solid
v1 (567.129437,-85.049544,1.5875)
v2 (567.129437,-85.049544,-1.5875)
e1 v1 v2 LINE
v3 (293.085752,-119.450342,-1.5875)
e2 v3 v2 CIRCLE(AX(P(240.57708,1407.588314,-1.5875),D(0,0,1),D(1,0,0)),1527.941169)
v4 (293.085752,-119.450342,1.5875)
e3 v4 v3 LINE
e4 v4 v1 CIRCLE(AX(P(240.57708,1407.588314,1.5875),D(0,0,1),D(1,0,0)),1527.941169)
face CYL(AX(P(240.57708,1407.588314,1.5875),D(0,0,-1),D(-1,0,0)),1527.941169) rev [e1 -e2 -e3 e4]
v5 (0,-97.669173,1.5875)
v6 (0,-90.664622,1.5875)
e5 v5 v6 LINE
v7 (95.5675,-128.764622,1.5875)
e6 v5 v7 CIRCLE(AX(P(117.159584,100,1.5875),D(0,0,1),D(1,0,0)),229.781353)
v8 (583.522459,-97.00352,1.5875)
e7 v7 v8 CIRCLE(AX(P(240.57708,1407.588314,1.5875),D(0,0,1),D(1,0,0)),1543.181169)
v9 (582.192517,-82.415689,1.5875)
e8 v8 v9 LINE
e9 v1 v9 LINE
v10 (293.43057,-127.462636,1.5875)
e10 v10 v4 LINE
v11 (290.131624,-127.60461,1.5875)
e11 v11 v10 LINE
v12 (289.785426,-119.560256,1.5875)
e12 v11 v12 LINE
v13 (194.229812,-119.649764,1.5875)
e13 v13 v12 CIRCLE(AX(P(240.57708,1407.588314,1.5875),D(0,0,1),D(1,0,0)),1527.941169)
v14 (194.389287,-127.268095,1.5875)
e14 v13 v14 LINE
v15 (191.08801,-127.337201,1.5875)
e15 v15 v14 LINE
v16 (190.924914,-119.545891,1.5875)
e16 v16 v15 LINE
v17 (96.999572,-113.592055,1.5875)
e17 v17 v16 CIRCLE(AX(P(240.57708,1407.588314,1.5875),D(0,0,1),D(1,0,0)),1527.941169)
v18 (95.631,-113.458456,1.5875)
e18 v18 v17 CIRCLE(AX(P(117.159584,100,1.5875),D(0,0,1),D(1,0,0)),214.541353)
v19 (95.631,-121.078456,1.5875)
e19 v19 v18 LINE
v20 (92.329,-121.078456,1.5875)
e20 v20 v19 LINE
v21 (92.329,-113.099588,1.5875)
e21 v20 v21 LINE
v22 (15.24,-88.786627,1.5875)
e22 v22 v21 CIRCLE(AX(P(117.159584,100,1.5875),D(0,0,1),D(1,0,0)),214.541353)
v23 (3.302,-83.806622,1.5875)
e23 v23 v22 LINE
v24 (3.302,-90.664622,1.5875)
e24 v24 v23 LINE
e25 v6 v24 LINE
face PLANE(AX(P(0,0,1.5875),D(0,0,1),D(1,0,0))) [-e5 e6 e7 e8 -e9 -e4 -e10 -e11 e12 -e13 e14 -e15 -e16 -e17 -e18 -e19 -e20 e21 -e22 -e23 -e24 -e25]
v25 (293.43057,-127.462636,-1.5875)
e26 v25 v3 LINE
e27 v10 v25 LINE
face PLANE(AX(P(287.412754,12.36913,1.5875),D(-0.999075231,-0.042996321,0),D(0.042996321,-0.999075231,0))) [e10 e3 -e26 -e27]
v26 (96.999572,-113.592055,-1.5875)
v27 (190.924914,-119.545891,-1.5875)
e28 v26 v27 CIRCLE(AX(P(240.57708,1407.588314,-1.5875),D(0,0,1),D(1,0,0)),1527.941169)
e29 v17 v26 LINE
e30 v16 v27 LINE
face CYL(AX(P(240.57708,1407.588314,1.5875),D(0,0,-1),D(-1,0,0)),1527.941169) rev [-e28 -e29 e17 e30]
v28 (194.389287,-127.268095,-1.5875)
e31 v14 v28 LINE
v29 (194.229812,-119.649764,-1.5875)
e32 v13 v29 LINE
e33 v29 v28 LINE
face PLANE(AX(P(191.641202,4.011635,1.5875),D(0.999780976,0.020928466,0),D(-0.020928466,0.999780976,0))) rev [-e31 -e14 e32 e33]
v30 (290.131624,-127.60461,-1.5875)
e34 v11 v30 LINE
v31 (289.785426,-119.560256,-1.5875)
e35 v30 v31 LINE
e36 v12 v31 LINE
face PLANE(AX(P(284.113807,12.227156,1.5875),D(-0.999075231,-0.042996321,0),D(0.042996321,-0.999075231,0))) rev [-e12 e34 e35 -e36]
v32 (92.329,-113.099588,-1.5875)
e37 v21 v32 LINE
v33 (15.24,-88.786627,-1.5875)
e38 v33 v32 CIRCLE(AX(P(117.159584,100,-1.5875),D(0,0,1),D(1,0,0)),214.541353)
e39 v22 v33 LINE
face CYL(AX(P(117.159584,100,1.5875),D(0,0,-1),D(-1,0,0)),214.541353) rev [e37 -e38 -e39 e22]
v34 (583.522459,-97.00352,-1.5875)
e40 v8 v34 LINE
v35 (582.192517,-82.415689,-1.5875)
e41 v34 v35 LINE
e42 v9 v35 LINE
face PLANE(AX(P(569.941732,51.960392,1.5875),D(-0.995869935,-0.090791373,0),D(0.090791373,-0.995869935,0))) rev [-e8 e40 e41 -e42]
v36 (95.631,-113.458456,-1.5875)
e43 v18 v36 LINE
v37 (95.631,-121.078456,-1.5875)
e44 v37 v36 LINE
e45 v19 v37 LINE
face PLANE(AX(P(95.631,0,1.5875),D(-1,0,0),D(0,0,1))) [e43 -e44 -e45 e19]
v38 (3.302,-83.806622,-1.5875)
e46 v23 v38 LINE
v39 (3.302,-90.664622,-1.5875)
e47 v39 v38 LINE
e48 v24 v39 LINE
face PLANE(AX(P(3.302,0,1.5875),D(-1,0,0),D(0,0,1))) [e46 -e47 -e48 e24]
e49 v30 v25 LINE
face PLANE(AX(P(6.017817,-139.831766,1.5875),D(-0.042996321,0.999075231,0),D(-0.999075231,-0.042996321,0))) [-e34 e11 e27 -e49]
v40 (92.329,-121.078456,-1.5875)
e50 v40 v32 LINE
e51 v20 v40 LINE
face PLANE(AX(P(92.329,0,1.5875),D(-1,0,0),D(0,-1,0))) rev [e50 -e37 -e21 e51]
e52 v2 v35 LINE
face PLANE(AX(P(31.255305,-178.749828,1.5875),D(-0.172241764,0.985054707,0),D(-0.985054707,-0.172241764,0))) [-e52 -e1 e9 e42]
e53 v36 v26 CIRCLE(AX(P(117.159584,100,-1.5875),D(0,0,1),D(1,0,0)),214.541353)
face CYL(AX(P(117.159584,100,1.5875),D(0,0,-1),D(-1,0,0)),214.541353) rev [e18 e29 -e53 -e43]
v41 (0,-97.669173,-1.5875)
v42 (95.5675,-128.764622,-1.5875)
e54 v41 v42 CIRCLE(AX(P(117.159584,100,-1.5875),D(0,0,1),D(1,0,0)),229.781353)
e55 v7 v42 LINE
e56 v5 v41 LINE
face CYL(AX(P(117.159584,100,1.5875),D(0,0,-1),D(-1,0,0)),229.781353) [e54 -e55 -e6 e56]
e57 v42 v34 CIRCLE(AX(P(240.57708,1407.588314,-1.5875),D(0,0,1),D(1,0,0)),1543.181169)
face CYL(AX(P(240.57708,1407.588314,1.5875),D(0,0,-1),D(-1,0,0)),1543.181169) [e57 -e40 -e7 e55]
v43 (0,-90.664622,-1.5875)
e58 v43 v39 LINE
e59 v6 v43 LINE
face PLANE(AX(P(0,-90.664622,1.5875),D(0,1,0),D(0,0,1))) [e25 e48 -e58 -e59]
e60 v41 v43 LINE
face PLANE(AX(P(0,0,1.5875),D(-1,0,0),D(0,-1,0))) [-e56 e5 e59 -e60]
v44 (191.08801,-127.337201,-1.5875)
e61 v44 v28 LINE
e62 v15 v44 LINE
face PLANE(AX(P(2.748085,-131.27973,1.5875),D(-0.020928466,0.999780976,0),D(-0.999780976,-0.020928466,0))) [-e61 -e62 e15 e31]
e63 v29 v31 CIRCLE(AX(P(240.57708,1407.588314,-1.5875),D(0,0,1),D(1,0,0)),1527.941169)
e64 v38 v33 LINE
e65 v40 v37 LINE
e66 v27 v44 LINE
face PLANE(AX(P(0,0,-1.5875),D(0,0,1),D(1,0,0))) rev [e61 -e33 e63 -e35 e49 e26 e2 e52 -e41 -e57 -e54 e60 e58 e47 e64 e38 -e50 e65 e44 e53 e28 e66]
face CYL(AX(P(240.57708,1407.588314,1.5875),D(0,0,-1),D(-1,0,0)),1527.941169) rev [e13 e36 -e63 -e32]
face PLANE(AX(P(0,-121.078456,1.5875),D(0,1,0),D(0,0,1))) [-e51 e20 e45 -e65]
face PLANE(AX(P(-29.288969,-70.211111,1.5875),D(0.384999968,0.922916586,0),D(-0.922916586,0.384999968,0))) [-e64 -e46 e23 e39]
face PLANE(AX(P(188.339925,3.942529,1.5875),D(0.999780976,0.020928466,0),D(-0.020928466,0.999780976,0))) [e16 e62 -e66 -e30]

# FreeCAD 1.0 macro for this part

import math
import FreeCAD as App
import Part
import Sketcher

V = App.Vector
Q = App.Units.Quantity

doc = App.newDocument("Part")
params = doc.addObject("Spreadsheet::Sheet", "Params")
for row, (alias, value) in enumerate([
    ("sketch1_height", "0.3 in"),
    ("sketch1_length", "0.3 in"),
    ("sketch1_width", "0.13 in"),
    ("sketch1_height2", "0.27 in"),
    ("sketch1_length2", "0.13 in"),
    ("pad1_length", "0.125 in"),
], start=1):
    params.set(f"A{row}", alias)
    params.set(f"B{row}", "=" + value)
    params.setAlias(f"B{row}", alias)

body = doc.addObject("PartDesign::Body", "Body")

# Sketch on XY plane
sketch1 = body.newObject("Sketcher::SketchObject", "Sketch")
sketch1.AttachmentSupport = (doc.getObject("XY_Plane"), [""])
sketch1.MapMode = "FlatFace"
sketch1.addGeometry([
    Part.LineSegment(V(3.302, -90.664622, 0), V(0, -90.664622, 0)),  # 0
    Part.LineSegment(V(0, -90.664622, 0), V(0, -97.669173, 0)),  # 1
    Part.ArcOfCircle(Part.Circle(V(117.159584, 100, 0), V(0, 0, 1), 229.781353), math.radians(-120.655451), math.radians(-95.391922)),  # 2
    Part.ArcOfCircle(Part.Circle(V(240.57708, 1407.588314, 0), V(0, 0, 1), 1543.181169), math.radians(-95.391922), math.radians(-77.159794)),  # 3
    Part.LineSegment(V(583.522459, -97.00352, 0), V(582.192517, -82.415689, 0)),  # 4
    Part.LineSegment(V(582.192517, -82.415689, 0), V(567.129437, -85.049544, 0)),  # 5
    Part.ArcOfCircle(Part.Circle(V(240.57708, 1407.588314, 0), V(0, 0, 1), 1527.941169), math.radians(-88.030606), math.radians(-77.659527)),  # 6
    Part.LineSegment(V(293.085752, -119.450342, 0), V(293.43057, -127.462636, 0)),  # 7
    Part.LineSegment(V(293.43057, -127.462636, 0), V(290.131624, -127.60461, 0)),  # 8
    Part.LineSegment(V(290.131624, -127.60461, 0), V(289.785426, -119.560256, 0)),  # 9
    Part.ArcOfCircle(Part.Circle(V(240.57708, 1407.588314, 0), V(0, 0, 1), 1527.941169), math.radians(-91.738228), math.radians(-88.154433)),  # 10
    Part.LineSegment(V(194.229812, -119.649764, 0), V(194.389287, -127.268095, 0)),  # 11
    Part.LineSegment(V(194.389287, -127.268095, 0), V(191.08801, -127.337201, 0)),  # 12
    Part.LineSegment(V(191.08801, -127.337201, 0), V(190.924914, -119.545891, 0)),  # 13
    Part.ArcOfCircle(Part.Circle(V(240.57708, 1407.588314, 0), V(0, 0, 1), 1527.941169), math.radians(-95.391922), math.radians(-91.862219)),  # 14
    Part.ArcOfCircle(Part.Circle(V(117.159573, 99.999883, 0), V(0, 0, 1), 214.541236), math.radians(-95.759153), math.radians(-95.391922)),  # 15
    Part.LineSegment(V(95.631, -113.458456, 0), V(95.631, -121.078456, 0)),  # 16
    Part.LineSegment(V(95.631, -121.078456, 0), V(92.329, -121.078456, 0)),  # 17
    Part.LineSegment(V(92.329, -121.078456, 0), V(92.329, -113.099588, 0)),  # 18
    Part.ArcOfCircle(Part.Circle(V(117.159584, 100, 0), V(0, 0, 1), 214.541353), math.radians(-118.363126), math.radians(-96.646193)),  # 19
    Part.LineSegment(V(15.24, -88.786627, 0), V(3.302, -83.806622, 0)),  # 20
    Part.LineSegment(V(3.302, -83.806622, 0), V(3.302, -90.664622, 0)),  # 21
], False)
sketch1.addConstraint([
    Sketcher.Constraint("Coincident", 0, 2, 1, 1),
    Sketcher.Constraint("Coincident", 1, 2, 2, 1),
    Sketcher.Constraint("Tangent", 2, 2, 3, 1),
    Sketcher.Constraint("Coincident", 3, 2, 4, 1),
    Sketcher.Constraint("Coincident", 4, 2, 5, 1),
    Sketcher.Constraint("Coincident", 5, 2, 6, 2),
    Sketcher.Constraint("Coincident", 6, 1, 7, 1),
    Sketcher.Constraint("Coincident", 7, 2, 8, 1),
    Sketcher.Constraint("Coincident", 8, 2, 9, 1),
    Sketcher.Constraint("Coincident", 9, 2, 10, 2),
    Sketcher.Constraint("Coincident", 10, 1, 11, 1),
    Sketcher.Constraint("Coincident", 11, 2, 12, 1),
    Sketcher.Constraint("Coincident", 12, 2, 13, 1),
    Sketcher.Constraint("Coincident", 13, 2, 14, 2),
    Sketcher.Constraint("Tangent", 14, 1, 15, 2),
    Sketcher.Constraint("Coincident", 15, 1, 16, 1),
    Sketcher.Constraint("Coincident", 16, 2, 17, 1),
    Sketcher.Constraint("Coincident", 17, 2, 18, 1),
    Sketcher.Constraint("Coincident", 18, 2, 19, 2),
    Sketcher.Constraint("Coincident", 19, 1, 20, 1),
    Sketcher.Constraint("Coincident", 20, 2, 21, 1),
    Sketcher.Constraint("Coincident", 21, 2, 0, 1),
    Sketcher.Constraint("Horizontal", 0),
    Sketcher.Constraint("Vertical", 1),
    Sketcher.Constraint("Vertical", 16),
    Sketcher.Constraint("Horizontal", 17),
    Sketcher.Constraint("Vertical", 18),
    Sketcher.Constraint("Vertical", 21),
    Sketcher.Constraint("Coincident", 6, 3, 3, 3),
    Sketcher.Constraint("Coincident", 10, 3, 3, 3),
    Sketcher.Constraint("Coincident", 14, 3, 3, 3),
    Sketcher.Constraint("Coincident", 19, 3, 2, 3),
    Sketcher.Constraint("Equal", 6, 10),
    Sketcher.Constraint("Equal", 10, 14),
    Sketcher.Constraint("PointOnObject", 0, 2, -2),
    Sketcher.Constraint("Perpendicular", 7, 8),
    Sketcher.Constraint("Perpendicular", 8, 9),
    Sketcher.Constraint("Perpendicular", 11, 12),
    Sketcher.Constraint("Perpendicular", 12, 13),
    Sketcher.Constraint("Equal", 0, 17),
    Sketcher.Constraint("Equal", 8, 12),
    Sketcher.Constraint("DistanceY", 16, 2, 16, 1, Q("0.3 in")),
    Sketcher.Constraint("Distance", 11, Q("0.3 in")),
    Sketcher.Constraint("DistanceX", 0, 2, 0, 1, Q("0.13 in")),
    Sketcher.Constraint("DistanceY", 21, 2, 21, 1, Q("0.27 in")),
    Sketcher.Constraint("DistanceX", -1, 1, 19, 1, Q("0.6 in")),
    Sketcher.Constraint("DistanceY", 2, 2, 0, 2, Q("1.5 in")),
    Sketcher.Constraint("Distance", 8, Q("0.13 in")),
    Sketcher.Constraint("Distance", 9, Q("0.317 in")),
    Sketcher.Constraint("DistanceX", -1, 1, 16, 2, Q("3.765 in")),
    Sketcher.Constraint("Radius", 3, Q("1543.181169 mm")),
    Sketcher.Constraint("Radius", 6, Q("1527.941169 mm")),
    Sketcher.Constraint("DistanceX", -1, 1, 2, 2, Q("3.7625 in")),
    Sketcher.Constraint("Radius", 2, Q("229.781353 mm")),
    Sketcher.Constraint("Radius", 15, Q("214.541236 mm")),
    Sketcher.Constraint("Radius", 19, Q("214.541353 mm")),
    Sketcher.Constraint("DistanceY", 9, 2, 15, 3, Q("8.6441 in")),
    Sketcher.Constraint("DistanceY", 1, 2, 1, 1, Q("7.004552 mm")),
    Sketcher.Constraint("DistanceY", -1, 1, 2, 3, Q("100 mm")),
    Sketcher.Constraint("DistanceY", 12, 2, -1, 1, Q("127.337201 mm")),
    Sketcher.Constraint("Distance", 4, Q("14.64833 mm")),
    Sketcher.Constraint("Distance", 7, Q("8.019711 mm")),
    Sketcher.Constraint("DistanceY", 4, 2, -1, 1, Q("82.415689 mm")),
    Sketcher.Constraint("DistanceX", -1, 1, 7, 2, Q("293.43057 mm")),
    Sketcher.Constraint("DistanceX", -1, 1, 12, 2, Q("191.08801 mm")),
    Sketcher.Constraint("DistanceX", 5, 2, 4, 2, Q("15.06308 mm")),
    Sketcher.Constraint("Distance", 5, Q("15.291618 mm")),
])
sketch1.setExpression("Constraints[41]", "Params.sketch1_height")
sketch1.setExpression("Constraints[42]", "Params.sketch1_length")
sketch1.setExpression("Constraints[43]", "Params.sketch1_width")
sketch1.setExpression("Constraints[44]", "Params.sketch1_height2")
sketch1.setExpression("Constraints[47]", "Params.sketch1_length2")
pad1 = body.newObject("PartDesign::Pad", "Pad")
pad1.Profile = sketch1
pad1.setExpression("Length", "Params.pad1_length")
pad1.Midplane = True

doc.recompute()
